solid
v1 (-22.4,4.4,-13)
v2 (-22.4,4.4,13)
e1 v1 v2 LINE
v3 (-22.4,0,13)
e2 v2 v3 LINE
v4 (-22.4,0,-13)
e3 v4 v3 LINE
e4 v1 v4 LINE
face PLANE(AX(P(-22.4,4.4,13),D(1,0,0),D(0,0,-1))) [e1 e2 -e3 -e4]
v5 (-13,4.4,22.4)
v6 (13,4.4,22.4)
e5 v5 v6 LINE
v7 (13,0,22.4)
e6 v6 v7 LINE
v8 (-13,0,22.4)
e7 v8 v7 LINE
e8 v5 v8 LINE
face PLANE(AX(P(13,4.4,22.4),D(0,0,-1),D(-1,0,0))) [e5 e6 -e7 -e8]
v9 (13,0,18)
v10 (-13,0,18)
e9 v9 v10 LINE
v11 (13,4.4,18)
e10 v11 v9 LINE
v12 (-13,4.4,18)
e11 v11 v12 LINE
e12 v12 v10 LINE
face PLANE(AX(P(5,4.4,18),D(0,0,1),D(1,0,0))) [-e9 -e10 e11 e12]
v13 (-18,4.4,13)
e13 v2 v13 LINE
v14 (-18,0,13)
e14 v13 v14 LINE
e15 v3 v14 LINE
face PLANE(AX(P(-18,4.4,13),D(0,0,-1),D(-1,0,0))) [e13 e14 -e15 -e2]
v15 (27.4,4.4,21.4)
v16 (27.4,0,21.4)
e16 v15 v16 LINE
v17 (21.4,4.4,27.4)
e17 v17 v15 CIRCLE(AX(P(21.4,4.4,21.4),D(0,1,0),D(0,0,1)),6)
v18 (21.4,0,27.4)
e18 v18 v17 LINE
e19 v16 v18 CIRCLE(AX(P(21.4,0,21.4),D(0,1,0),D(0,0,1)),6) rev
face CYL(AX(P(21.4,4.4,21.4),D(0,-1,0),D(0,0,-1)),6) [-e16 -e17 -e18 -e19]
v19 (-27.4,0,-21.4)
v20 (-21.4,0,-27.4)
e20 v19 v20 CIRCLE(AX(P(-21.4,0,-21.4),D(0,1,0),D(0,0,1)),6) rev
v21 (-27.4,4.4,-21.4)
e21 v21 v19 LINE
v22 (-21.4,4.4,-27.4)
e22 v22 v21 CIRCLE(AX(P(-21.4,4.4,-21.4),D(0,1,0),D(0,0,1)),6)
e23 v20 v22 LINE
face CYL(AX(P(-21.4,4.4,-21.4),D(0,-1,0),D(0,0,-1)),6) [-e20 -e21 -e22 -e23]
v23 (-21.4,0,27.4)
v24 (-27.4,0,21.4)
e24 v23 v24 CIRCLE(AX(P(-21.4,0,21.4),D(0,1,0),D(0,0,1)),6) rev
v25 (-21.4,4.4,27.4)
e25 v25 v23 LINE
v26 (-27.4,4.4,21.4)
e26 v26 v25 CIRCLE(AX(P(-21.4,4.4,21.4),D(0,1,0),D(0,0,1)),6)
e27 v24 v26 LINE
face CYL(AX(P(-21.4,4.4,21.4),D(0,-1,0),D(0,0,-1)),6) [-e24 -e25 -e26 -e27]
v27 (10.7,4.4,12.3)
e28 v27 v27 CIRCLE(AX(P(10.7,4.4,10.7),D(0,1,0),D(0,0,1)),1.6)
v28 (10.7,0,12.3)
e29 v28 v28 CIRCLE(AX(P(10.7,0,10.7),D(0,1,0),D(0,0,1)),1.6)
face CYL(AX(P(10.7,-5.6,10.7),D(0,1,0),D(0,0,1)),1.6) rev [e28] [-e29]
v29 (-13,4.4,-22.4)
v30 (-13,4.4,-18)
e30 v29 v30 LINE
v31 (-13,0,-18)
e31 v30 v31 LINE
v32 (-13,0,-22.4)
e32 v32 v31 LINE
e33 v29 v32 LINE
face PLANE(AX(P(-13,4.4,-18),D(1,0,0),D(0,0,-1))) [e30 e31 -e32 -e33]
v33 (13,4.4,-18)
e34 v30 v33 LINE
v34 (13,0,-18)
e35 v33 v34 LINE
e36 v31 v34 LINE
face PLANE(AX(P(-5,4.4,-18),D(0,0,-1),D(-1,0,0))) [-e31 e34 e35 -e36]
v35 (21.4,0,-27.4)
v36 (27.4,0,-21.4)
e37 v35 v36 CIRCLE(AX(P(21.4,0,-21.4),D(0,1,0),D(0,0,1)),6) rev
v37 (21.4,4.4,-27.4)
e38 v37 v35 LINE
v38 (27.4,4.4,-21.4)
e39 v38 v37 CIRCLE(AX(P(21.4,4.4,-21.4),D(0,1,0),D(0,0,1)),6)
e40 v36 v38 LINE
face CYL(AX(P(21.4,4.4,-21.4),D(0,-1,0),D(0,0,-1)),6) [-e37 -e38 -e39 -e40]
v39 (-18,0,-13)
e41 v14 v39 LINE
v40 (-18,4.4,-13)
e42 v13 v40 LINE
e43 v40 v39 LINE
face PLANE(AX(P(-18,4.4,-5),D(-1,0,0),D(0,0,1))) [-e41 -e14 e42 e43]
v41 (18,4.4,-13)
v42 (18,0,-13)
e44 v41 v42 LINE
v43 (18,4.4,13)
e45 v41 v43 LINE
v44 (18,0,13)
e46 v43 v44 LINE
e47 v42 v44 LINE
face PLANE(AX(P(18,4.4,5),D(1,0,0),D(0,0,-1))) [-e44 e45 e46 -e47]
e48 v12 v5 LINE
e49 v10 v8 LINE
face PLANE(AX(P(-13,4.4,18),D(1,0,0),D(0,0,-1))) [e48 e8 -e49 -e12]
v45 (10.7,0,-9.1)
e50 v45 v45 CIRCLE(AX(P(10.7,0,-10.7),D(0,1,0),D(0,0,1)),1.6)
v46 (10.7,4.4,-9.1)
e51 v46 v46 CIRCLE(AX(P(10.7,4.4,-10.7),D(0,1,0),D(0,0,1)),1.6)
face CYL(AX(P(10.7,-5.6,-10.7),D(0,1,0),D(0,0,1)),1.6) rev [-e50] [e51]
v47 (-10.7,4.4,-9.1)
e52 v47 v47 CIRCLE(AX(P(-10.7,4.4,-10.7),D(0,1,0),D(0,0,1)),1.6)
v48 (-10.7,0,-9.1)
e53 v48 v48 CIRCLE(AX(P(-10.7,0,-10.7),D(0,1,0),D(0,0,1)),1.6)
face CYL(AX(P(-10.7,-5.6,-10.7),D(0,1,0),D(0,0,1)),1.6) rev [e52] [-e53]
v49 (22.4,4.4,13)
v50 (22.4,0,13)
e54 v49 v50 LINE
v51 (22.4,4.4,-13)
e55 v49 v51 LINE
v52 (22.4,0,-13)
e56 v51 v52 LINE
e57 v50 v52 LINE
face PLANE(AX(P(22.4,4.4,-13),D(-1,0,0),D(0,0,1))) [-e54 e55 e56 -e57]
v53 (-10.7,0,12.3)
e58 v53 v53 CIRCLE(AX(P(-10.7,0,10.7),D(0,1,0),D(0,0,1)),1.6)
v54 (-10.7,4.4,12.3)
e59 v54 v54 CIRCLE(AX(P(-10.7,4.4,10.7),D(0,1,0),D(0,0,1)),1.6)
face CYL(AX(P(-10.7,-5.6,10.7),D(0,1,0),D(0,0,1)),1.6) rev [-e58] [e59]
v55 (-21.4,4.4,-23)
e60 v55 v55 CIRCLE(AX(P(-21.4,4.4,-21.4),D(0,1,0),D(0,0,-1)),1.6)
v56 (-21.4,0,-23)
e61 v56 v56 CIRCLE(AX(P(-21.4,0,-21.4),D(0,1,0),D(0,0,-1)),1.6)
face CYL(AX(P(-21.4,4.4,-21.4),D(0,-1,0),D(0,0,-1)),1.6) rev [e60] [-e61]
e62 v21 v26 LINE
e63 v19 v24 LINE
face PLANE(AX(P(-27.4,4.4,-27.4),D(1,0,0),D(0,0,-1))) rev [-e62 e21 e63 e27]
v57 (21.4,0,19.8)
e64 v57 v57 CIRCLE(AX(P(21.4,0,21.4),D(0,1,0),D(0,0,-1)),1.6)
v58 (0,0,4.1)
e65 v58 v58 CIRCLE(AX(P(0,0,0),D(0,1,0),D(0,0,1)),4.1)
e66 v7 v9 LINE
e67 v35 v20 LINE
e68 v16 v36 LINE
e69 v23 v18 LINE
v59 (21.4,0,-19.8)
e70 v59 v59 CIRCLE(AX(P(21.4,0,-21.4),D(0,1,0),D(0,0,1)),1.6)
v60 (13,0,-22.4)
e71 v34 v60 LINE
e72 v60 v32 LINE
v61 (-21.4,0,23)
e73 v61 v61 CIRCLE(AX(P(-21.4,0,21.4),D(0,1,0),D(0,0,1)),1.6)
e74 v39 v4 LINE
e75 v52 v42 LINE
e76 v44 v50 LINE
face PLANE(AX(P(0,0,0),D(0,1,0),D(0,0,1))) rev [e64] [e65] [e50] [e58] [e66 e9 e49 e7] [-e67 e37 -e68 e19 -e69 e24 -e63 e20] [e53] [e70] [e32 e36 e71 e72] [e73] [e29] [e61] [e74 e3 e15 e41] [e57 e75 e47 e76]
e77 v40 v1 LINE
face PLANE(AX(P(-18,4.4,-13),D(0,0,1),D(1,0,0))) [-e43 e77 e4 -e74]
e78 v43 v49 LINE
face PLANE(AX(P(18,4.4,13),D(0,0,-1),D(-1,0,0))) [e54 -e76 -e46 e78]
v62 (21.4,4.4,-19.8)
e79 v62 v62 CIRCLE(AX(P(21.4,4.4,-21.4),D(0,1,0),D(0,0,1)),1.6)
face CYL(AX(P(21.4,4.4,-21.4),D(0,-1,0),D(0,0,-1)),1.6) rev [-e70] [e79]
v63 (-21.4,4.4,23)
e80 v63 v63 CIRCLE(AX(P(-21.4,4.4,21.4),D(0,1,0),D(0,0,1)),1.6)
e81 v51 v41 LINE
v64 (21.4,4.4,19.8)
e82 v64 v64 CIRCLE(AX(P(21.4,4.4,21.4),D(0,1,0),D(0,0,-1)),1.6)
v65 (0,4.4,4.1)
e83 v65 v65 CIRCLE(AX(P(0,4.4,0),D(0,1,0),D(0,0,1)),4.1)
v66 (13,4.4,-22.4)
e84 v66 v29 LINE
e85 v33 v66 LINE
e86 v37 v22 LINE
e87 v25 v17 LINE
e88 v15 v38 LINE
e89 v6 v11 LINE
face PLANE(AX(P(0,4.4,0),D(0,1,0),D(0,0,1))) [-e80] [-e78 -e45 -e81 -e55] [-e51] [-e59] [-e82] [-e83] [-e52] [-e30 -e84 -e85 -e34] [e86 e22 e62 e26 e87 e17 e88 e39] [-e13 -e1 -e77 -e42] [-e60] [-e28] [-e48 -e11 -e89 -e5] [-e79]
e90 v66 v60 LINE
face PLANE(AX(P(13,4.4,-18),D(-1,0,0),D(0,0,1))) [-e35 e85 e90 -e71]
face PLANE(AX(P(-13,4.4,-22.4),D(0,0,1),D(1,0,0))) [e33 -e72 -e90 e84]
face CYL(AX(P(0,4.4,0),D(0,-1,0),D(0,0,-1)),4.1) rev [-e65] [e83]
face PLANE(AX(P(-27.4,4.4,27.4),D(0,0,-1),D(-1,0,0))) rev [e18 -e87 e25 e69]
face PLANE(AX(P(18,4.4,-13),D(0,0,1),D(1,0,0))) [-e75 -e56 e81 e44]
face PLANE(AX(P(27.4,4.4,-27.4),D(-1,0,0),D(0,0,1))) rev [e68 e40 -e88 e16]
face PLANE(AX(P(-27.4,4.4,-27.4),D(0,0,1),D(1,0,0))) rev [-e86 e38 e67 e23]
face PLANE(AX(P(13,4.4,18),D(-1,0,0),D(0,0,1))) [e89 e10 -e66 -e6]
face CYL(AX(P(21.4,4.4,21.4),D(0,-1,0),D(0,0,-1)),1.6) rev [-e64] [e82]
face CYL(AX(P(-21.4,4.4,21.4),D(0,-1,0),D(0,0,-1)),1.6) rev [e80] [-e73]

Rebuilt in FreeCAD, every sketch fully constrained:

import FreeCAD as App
import Part
import Sketcher
Q = App.Units.Quantity


def edges_at(feature, points):
    """Names of the edges that pass closest to the given points."""
    edges = feature.Shape.Edges
    near = lambda p: min(range(len(edges)), key=lambda i: edges[i].distToShape(Part.Vertex(*p))[0])
    return sorted({f"Edge{near(p) + 1}" for p in points})

doc = App.newDocument("Part")
body = doc.addObject("PartDesign::Body", "Body")

# Sketch on XZ plane
sketch1 = doc.addObject("Sketcher::SketchObject", "Sketch")
body.addObject(sketch1)
sketch1.AttachmentSupport = (doc.XZ_Plane, [""])
sketch1.MapMode = "FlatFace"
sketch1.addGeometry(Part.LineSegment(App.Vector(-27.4, -27.4, 0), App.Vector(-27.4, 27.4, 0)), False)
sketch1.addGeometry(Part.LineSegment(App.Vector(-27.4, 27.4, 0), App.Vector(27.4, 27.4, 0)), False)
sketch1.addGeometry(Part.LineSegment(App.Vector(27.4, 27.4, 0), App.Vector(27.4, -27.4, 0)), False)
sketch1.addGeometry(Part.LineSegment(App.Vector(27.4, -27.4, 0), App.Vector(-27.4, -27.4, 0)), False)
sketch1.addGeometry(Part.Circle(App.Vector(-21.4, 21.4, 0), App.Vector(0, 0, 1), 1.6), False)
sketch1.addGeometry(Part.LineSegment(App.Vector(-13, 18, 0), App.Vector(13, 18, 0)), False)
sketch1.addGeometry(Part.LineSegment(App.Vector(13, 18, 0), App.Vector(13, 22.4, 0)), False)
sketch1.addGeometry(Part.LineSegment(App.Vector(13, 22.4, 0), App.Vector(-13, 22.4, 0)), False)
sketch1.addGeometry(Part.LineSegment(App.Vector(-13, 22.4, 0), App.Vector(-13, 18, 0)), False)
sketch1.addGeometry(Part.Circle(App.Vector(21.4, 21.4, 0), App.Vector(0, 0, 1), 1.6), False)
sketch1.addGeometry(Part.LineSegment(App.Vector(-18, -13, 0), App.Vector(-18, 13, 0)), False)
sketch1.addGeometry(Part.LineSegment(App.Vector(-18, 13, 0), App.Vector(-22.4, 13, 0)), False)
sketch1.addGeometry(Part.LineSegment(App.Vector(-22.4, 13, 0), App.Vector(-22.4, -13, 0)), False)
sketch1.addGeometry(Part.LineSegment(App.Vector(-22.4, -13, 0), App.Vector(-18, -13, 0)), False)
sketch1.addGeometry(Part.Circle(App.Vector(-21.4, -21.4, 0), App.Vector(0, 0, 1), 1.6), False)
sketch1.addGeometry(Part.Circle(App.Vector(0, 0, 0), App.Vector(0, 0, 1), 4.1), False)
sketch1.addGeometry(Part.LineSegment(App.Vector(18, 13, 0), App.Vector(18, -13, 0)), False)
sketch1.addGeometry(Part.LineSegment(App.Vector(18, -13, 0), App.Vector(22.4, -13, 0)), False)
sketch1.addGeometry(Part.LineSegment(App.Vector(22.4, -13, 0), App.Vector(22.4, 13, 0)), False)
sketch1.addGeometry(Part.LineSegment(App.Vector(22.4, 13, 0), App.Vector(18, 13, 0)), False)
sketch1.addGeometry(Part.LineSegment(App.Vector(13, -18, 0), App.Vector(-13, -18, 0)), False)
sketch1.addGeometry(Part.LineSegment(App.Vector(-13, -18, 0), App.Vector(-13, -22.4, 0)), False)
sketch1.addGeometry(Part.LineSegment(App.Vector(-13, -22.4, 0), App.Vector(13, -22.4, 0)), False)
sketch1.addGeometry(Part.LineSegment(App.Vector(13, -22.4, 0), App.Vector(13, -18, 0)), False)
sketch1.addGeometry(Part.Circle(App.Vector(21.4, -21.4, 0), App.Vector(0, 0, 1), 1.6), False)
sketch1.addConstraint(Sketcher.Constraint("Coincident", 0, 2, 1, 1))
sketch1.addConstraint(Sketcher.Constraint("Coincident", 1, 2, 2, 1))
sketch1.addConstraint(Sketcher.Constraint("Coincident", 2, 2, 3, 1))
sketch1.addConstraint(Sketcher.Constraint("Coincident", 3, 2, 0, 1))
sketch1.addConstraint(Sketcher.Constraint("Coincident", 5, 2, 6, 1))
sketch1.addConstraint(Sketcher.Constraint("Coincident", 6, 2, 7, 1))
sketch1.addConstraint(Sketcher.Constraint("Coincident", 7, 2, 8, 1))
sketch1.addConstraint(Sketcher.Constraint("Coincident", 8, 2, 5, 1))
sketch1.addConstraint(Sketcher.Constraint("Coincident", 10, 2, 11, 1))
sketch1.addConstraint(Sketcher.Constraint("Coincident", 11, 2, 12, 1))
sketch1.addConstraint(Sketcher.Constraint("Coincident", 12, 2, 13, 1))
sketch1.addConstraint(Sketcher.Constraint("Coincident", 13, 2, 10, 1))
sketch1.addConstraint(Sketcher.Constraint("Coincident", 16, 2, 17, 1))
sketch1.addConstraint(Sketcher.Constraint("Coincident", 17, 2, 18, 1))
sketch1.addConstraint(Sketcher.Constraint("Coincident", 18, 2, 19, 1))
sketch1.addConstraint(Sketcher.Constraint("Coincident", 19, 2, 16, 1))
sketch1.addConstraint(Sketcher.Constraint("Coincident", 20, 2, 21, 1))
sketch1.addConstraint(Sketcher.Constraint("Coincident", 21, 2, 22, 1))
sketch1.addConstraint(Sketcher.Constraint("Coincident", 22, 2, 23, 1))
sketch1.addConstraint(Sketcher.Constraint("Coincident", 23, 2, 20, 1))
sketch1.addConstraint(Sketcher.Constraint("Vertical", 0))
sketch1.addConstraint(Sketcher.Constraint("Horizontal", 1))
sketch1.addConstraint(Sketcher.Constraint("Vertical", 2))
sketch1.addConstraint(Sketcher.Constraint("Horizontal", 3))
sketch1.addConstraint(Sketcher.Constraint("Horizontal", 5))
sketch1.addConstraint(Sketcher.Constraint("Vertical", 6))
sketch1.addConstraint(Sketcher.Constraint("Horizontal", 7))
sketch1.addConstraint(Sketcher.Constraint("Vertical", 8))
sketch1.addConstraint(Sketcher.Constraint("Vertical", 10))
sketch1.addConstraint(Sketcher.Constraint("Horizontal", 11))
sketch1.addConstraint(Sketcher.Constraint("Vertical", 12))
sketch1.addConstraint(Sketcher.Constraint("Horizontal", 13))
sketch1.addConstraint(Sketcher.Constraint("Vertical", 16))
sketch1.addConstraint(Sketcher.Constraint("Horizontal", 17))
sketch1.addConstraint(Sketcher.Constraint("Vertical", 18))
sketch1.addConstraint(Sketcher.Constraint("Horizontal", 19))
sketch1.addConstraint(Sketcher.Constraint("Horizontal", 20))
sketch1.addConstraint(Sketcher.Constraint("Vertical", 21))
sketch1.addConstraint(Sketcher.Constraint("Horizontal", 22))
sketch1.addConstraint(Sketcher.Constraint("Vertical", 23))
sketch1.addConstraint(Sketcher.Constraint("Coincident", 15, 3, -1, 1))
sketch1.addConstraint(Sketcher.Constraint("Equal", 4, 9))
sketch1.addConstraint(Sketcher.Constraint("Equal", 9, 14))
sketch1.addConstraint(Sketcher.Constraint("Equal", 14, 24))
sketch1.addConstraint(Sketcher.Constraint("Symmetric", 9, 3, 14, 3, -1, 1))
sketch1.addConstraint(Sketcher.Constraint("Symmetric", 4, 3, 24, 3, -1, 1))
sketch1.addConstraint(Sketcher.Constraint("Symmetric", 0, 2, 2, 2, -1, 1))
sketch1.addConstraint(Sketcher.Constraint("Symmetric", 10, 2, 16, 2, -1, 1))
sketch1.addConstraint(Sketcher.Constraint("Symmetric", 12, 2, 18, 2, -1, 1))
sketch1.addConstraint(Sketcher.Constraint("Symmetric", 5, 2, 20, 2, -1, 1))
sketch1.addConstraint(Sketcher.Constraint("Symmetric", 7, 2, 22, 2, -1, 1))
sketch1.addConstraint(Sketcher.Constraint("Symmetric", 4, 3, 9, 3, -2))
sketch1.addConstraint(Sketcher.Constraint("Horizontal", 13, 2, 16, 2))
sketch1.addConstraint(Sketcher.Constraint("Vertical", 8, 2, 20, 2))
sketch1.addConstraint(Sketcher.Constraint("Equal", 3, 0))
sketch1.addConstraint(Sketcher.Constraint("Equal", 19, 6))
sketch1.addConstraint(Sketcher.Constraint("Equal", 22, 10))
sketch1.addConstraint(Sketcher.Constraint("Diameter", 4, Q("3.2 mm")))
sketch1.addConstraint(Sketcher.Constraint("Diameter", 15, Q("8.2 mm")))
sketch1.addConstraint(Sketcher.Constraint("DistanceX", 5, 1, 5, 2, Q("26 mm")))
sketch1.addConstraint(Sketcher.Constraint("DistanceX", 1, 1, 1, 2, Q("54.8 mm")))
sketch1.addConstraint(Sketcher.Constraint("DistanceX", 11, 2, 11, 1, Q("4.4 mm")))
sketch1.addConstraint(Sketcher.Constraint("DistanceY", -1, 1, 5, 2, Q("18 mm")))
sketch1.addConstraint(Sketcher.Constraint("DistanceX", 10, 2, -1, 1, Q("18 mm")))
sketch1.addConstraint(Sketcher.Constraint("DistanceX", 0, 2, 4, 3, Q("6 mm")))
sketch1.addConstraint(Sketcher.Constraint("DistanceY", 4, 3, 0, 2, Q("6 mm")))
pad1 = doc.addObject("PartDesign::Pad", "Pad")
body.addObject(pad1)
pad1.Profile = sketch1
pad1.Length = 4.4
pad1.Reversed = True
doc.recompute()

fillet = doc.addObject("PartDesign::Fillet", "Fillet")
body.addObject(fillet)
fillet.Base = (pad1, edges_at(pad1, [
    (27.4, 2.2, 27.4),
    (-27.4, 2.2, 27.4),
    (-27.4, 2.2, -27.4),
    (27.4, 2.2, -27.4),
]))
fillet.Radius = 6

# Sketch on XZ plane
sketch2 = doc.addObject("Sketcher::SketchObject", "Sketch001")
body.addObject(sketch2)
sketch2.AttachmentSupport = (doc.XZ_Plane, [""])
sketch2.MapMode = "FlatFace"
sketch2.AttachmentOffset = App.Placement(App.Vector(0, 0, -4.4), App.Rotation())
sketch2.addGeometry(Part.Circle(App.Vector(10.7, -10.7, 0), App.Vector(0, 0, 1), 1.6), False)
sketch2.addGeometry(Part.Circle(App.Vector(10.7, 10.7, 0), App.Vector(0, 0, 1), 1.6), False)
sketch2.addGeometry(Part.Circle(App.Vector(-10.7, 10.7, 0), App.Vector(0, 0, 1), 1.6), False)
sketch2.addGeometry(Part.Circle(App.Vector(-10.7, -10.7, 0), App.Vector(0, 0, 1), 1.6), False)
sketch2.addConstraint(Sketcher.Constraint("Equal", 0, 1))
sketch2.addConstraint(Sketcher.Constraint("Equal", 1, 2))
sketch2.addConstraint(Sketcher.Constraint("Equal", 2, 3))
sketch2.addConstraint(Sketcher.Constraint("Symmetric", 0, 3, 2, 3, -1, 1))
sketch2.addConstraint(Sketcher.Constraint("Symmetric", 1, 3, 3, 3, -1, 1))
sketch2.addConstraint(Sketcher.Constraint("Symmetric", 1, 3, 2, 3, -2))
sketch2.addConstraint(Sketcher.Constraint("Diameter", 0, Q("3.2 mm")))
sketch2.addConstraint(Sketcher.Constraint("DistanceX", -1, 1, 0, 3, Q("10.7 mm")))
sketch2.addConstraint(Sketcher.Constraint("DistanceY", 0, 3, -1, 1, Q("10.7 mm")))
pocket1 = doc.addObject("PartDesign::Pocket", "Pocket")
body.addObject(pocket1)
pocket1.Profile = sketch2
pocket1.Length = 10
pocket1.Reversed = True

doc.recompute()
